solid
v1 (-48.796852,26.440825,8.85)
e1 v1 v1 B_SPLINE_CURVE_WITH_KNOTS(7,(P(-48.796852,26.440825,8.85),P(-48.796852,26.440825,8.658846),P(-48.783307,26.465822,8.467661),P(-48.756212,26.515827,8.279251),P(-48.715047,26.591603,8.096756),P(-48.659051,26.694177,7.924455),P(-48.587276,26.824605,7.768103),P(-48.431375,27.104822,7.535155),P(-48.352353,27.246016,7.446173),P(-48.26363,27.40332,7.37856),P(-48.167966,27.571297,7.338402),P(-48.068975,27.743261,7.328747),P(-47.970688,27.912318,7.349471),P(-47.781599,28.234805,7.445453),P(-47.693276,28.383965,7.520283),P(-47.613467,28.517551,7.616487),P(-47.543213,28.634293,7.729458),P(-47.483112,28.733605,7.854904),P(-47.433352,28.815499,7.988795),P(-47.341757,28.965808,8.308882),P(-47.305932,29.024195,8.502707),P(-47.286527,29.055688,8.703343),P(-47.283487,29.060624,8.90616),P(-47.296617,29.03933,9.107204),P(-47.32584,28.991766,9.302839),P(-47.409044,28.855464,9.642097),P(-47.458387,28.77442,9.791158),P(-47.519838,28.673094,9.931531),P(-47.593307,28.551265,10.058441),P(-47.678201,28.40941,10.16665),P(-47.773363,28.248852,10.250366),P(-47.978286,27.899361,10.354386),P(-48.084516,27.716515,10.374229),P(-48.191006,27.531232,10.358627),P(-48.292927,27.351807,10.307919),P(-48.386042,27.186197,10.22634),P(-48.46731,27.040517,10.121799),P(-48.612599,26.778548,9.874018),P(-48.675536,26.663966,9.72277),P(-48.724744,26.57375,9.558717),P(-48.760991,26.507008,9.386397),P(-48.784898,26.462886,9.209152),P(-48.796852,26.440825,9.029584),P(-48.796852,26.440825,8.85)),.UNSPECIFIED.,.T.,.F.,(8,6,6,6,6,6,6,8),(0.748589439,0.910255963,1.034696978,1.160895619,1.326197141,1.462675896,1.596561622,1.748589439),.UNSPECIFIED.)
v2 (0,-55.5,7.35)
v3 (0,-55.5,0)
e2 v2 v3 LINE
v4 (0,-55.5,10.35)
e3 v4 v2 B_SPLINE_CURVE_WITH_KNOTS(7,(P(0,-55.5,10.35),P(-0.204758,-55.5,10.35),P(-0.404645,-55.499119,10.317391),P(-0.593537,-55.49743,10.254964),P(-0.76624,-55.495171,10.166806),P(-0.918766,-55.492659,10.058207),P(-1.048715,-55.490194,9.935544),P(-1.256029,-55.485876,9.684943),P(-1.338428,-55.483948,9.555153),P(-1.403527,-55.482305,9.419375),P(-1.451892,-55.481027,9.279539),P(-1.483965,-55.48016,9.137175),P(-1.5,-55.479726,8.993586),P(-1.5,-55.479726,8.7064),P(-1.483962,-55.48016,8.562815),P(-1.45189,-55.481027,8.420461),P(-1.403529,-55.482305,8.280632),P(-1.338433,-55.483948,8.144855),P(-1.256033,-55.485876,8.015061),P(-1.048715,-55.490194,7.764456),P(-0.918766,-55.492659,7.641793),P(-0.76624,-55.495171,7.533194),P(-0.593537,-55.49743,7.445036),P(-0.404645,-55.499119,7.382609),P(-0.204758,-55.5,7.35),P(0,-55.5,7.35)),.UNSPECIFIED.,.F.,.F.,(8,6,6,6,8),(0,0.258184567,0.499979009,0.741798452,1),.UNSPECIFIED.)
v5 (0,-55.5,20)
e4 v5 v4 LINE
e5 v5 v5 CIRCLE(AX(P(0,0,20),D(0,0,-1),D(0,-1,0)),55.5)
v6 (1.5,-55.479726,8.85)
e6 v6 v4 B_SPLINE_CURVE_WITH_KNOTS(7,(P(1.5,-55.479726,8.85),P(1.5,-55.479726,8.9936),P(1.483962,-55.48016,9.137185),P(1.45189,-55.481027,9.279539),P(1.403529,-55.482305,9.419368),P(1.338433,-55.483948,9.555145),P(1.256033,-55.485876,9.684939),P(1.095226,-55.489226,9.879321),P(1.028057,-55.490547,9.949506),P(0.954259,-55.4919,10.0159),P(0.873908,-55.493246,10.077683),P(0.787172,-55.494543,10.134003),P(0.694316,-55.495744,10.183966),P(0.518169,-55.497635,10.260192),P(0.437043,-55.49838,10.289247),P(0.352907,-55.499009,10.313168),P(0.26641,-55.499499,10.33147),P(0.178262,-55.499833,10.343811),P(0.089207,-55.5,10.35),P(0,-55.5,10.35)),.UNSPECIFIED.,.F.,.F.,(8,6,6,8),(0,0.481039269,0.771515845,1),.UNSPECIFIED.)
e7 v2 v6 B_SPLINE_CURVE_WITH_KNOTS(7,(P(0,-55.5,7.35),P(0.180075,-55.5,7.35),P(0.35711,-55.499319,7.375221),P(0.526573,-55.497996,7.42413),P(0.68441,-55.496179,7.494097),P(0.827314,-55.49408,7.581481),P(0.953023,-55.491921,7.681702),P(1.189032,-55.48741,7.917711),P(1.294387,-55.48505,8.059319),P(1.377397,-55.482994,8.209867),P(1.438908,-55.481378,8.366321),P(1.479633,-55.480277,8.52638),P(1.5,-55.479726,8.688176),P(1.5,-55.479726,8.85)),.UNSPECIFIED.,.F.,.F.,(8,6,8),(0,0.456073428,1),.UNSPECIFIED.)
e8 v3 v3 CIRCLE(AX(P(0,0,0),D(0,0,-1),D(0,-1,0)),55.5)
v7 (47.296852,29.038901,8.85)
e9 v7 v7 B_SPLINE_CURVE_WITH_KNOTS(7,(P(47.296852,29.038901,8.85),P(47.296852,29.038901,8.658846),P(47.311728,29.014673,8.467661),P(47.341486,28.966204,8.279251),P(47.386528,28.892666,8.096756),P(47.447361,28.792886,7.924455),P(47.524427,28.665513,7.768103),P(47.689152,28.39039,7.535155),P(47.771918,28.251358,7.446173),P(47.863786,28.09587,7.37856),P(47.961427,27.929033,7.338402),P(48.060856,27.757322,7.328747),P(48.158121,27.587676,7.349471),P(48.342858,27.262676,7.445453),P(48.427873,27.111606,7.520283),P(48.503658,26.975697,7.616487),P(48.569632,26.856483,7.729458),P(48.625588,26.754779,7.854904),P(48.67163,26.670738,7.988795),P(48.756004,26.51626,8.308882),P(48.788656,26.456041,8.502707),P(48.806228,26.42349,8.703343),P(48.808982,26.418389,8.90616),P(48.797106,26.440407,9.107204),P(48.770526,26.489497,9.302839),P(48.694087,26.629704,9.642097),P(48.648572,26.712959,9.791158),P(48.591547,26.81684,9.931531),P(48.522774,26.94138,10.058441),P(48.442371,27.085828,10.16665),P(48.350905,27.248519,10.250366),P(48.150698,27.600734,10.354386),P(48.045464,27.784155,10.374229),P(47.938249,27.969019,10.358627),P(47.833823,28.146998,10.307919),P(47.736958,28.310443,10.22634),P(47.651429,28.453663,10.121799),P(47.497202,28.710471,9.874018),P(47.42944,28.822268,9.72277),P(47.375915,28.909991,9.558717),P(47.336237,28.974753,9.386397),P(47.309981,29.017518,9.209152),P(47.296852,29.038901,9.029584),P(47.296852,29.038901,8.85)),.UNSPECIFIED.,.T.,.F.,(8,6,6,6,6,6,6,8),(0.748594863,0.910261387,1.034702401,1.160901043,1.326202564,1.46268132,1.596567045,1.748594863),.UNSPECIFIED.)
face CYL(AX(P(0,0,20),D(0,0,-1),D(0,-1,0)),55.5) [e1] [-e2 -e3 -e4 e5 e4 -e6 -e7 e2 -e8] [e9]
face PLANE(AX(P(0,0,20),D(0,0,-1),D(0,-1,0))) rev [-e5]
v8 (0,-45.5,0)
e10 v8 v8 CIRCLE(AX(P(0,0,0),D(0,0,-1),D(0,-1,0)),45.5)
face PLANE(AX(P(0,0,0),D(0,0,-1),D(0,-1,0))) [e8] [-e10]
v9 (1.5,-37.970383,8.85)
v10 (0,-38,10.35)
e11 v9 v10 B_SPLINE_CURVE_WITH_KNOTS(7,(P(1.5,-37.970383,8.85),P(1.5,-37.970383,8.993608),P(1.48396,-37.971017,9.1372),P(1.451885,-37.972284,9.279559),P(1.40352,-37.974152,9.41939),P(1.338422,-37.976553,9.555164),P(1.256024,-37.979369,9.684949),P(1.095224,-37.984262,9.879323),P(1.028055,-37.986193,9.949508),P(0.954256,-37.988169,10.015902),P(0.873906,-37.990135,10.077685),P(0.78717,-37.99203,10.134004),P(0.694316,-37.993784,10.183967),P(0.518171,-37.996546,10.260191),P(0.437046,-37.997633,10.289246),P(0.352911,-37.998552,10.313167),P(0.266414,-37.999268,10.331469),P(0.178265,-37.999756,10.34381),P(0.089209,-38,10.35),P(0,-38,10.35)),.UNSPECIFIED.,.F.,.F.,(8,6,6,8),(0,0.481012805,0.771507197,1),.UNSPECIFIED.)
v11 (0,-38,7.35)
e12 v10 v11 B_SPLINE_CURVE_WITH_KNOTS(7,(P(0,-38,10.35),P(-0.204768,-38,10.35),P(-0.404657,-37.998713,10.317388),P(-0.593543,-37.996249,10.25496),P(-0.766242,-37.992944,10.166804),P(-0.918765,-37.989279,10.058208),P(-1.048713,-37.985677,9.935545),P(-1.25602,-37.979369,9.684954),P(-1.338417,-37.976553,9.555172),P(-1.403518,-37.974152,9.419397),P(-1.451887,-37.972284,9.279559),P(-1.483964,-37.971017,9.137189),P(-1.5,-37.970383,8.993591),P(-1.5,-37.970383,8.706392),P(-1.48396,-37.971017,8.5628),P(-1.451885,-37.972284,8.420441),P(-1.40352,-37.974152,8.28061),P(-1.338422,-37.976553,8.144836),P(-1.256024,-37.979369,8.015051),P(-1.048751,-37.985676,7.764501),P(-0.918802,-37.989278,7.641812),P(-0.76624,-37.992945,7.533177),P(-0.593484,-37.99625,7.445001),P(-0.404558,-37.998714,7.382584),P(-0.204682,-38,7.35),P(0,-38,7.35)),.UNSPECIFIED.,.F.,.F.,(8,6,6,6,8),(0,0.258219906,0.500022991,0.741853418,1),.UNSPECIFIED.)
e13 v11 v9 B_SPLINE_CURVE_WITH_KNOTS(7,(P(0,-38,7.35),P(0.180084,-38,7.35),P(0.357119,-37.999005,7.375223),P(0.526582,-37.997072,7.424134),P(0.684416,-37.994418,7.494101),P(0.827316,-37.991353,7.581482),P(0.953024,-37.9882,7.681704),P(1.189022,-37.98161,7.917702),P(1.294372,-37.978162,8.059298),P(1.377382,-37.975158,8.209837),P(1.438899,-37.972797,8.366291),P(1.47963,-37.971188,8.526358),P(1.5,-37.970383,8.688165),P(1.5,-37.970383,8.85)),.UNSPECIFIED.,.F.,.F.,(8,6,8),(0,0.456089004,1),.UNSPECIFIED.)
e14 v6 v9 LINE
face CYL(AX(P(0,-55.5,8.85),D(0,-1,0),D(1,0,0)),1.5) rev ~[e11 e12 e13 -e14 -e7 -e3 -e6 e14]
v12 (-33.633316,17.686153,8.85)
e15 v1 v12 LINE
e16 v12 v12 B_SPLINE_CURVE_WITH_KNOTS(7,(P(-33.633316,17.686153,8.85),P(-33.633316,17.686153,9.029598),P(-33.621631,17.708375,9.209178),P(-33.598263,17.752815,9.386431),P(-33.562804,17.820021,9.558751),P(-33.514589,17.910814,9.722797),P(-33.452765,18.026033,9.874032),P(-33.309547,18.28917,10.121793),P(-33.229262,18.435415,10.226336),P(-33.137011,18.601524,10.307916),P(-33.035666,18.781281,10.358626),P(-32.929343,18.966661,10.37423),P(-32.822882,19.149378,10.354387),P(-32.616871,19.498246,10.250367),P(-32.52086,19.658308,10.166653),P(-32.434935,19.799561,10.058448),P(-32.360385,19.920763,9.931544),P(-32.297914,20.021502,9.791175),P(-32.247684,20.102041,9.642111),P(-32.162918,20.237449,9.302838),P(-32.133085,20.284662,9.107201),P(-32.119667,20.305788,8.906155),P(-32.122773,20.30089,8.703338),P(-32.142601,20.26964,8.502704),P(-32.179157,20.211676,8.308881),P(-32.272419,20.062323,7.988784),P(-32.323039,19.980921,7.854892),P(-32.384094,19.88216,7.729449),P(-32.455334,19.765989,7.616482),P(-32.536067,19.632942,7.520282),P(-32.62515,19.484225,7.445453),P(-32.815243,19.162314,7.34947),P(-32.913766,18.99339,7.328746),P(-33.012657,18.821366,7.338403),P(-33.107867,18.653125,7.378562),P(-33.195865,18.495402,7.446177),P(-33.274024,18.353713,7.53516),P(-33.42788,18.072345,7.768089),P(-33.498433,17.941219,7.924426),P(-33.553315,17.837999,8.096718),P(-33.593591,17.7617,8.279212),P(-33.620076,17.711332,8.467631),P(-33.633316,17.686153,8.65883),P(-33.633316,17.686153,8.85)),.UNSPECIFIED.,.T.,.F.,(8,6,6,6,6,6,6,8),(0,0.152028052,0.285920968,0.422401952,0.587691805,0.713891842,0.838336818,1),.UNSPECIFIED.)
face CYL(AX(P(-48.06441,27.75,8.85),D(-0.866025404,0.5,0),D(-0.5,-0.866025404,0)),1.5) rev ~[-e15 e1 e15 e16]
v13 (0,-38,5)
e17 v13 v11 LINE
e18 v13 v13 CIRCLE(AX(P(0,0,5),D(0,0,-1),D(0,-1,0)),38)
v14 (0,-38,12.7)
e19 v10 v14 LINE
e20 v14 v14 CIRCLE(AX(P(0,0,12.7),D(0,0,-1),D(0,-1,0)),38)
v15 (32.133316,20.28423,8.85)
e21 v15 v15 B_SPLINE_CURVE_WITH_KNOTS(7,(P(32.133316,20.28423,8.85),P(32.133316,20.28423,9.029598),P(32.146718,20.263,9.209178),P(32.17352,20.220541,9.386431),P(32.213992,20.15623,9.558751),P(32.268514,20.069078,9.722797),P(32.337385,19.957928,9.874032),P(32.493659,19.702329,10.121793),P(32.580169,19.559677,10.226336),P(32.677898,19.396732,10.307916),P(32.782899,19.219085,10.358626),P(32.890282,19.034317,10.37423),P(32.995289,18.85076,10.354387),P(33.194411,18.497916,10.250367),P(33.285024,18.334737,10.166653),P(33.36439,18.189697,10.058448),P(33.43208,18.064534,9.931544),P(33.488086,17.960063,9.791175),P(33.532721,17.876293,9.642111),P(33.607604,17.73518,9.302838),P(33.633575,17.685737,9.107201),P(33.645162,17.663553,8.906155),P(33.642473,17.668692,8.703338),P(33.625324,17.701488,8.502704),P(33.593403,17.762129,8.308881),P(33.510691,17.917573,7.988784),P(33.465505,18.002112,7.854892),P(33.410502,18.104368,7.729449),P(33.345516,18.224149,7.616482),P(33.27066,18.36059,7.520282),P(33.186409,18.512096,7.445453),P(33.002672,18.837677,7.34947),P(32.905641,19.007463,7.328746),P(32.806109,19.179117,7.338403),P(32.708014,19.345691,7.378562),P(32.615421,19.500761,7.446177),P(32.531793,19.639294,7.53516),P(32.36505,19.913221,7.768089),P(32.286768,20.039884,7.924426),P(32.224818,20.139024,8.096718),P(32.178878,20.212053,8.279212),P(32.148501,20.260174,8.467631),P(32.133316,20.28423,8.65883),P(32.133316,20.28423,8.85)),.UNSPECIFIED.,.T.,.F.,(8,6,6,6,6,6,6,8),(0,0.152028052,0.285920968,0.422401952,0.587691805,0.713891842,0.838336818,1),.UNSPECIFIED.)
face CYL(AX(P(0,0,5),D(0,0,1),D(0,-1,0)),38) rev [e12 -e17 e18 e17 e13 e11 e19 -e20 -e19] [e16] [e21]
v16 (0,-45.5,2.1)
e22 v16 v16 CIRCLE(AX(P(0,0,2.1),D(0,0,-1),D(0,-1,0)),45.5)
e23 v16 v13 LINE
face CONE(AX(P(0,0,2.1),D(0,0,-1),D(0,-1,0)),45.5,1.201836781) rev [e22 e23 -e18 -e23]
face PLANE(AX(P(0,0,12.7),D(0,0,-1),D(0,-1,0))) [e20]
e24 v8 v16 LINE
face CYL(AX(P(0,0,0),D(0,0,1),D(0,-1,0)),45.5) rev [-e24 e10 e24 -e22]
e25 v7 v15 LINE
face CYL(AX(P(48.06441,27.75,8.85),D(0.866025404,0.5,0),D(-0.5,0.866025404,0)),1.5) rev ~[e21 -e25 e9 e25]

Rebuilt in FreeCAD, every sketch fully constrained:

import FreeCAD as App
import Part
import Sketcher
from FreeCAD import Vector
Q = App.Units.Quantity


def add_polygon(sketch, points):
    """Adds a closed chain of lines whose ends are joined by coincident constraints."""
    first, n = sketch.GeometryCount, len(points)
    for a, b in zip(points, points[1:] + points[:1]):
        sketch.addGeometry(Part.LineSegment(App.Vector(*a, 0), App.Vector(*b, 0)), False)
    for i in range(n):
        sketch.addConstraint(Sketcher.Constraint("Coincident", first + i, 2, first + (i + 1) % n, 1))

doc = App.newDocument("Part")
body = doc.addObject("PartDesign::Body", "Body")

sketch1 = body.newObject("Sketcher::SketchObject", "Sketch")
sketch1.AttachmentSupport = (doc.getObject("YZ_Plane"), [""])
sketch1.MapMode = "FlatFace"
add_polygon(sketch1, [(-55.5, 0), (-45.5, 0), (-45.5, 2.1), (-38, 5), (-38, 12.7), (0, 12.7), (0, 20), (-55.5, 20)])
sketch1.addConstraint([
    Sketcher.Constraint("Horizontal", 0),
    Sketcher.Constraint("Vertical", 1),
    Sketcher.Constraint("Vertical", 3),
    Sketcher.Constraint("Horizontal", 4),
    Sketcher.Constraint("Vertical", 5),
    Sketcher.Constraint("Horizontal", 6),
    Sketcher.Constraint("Vertical", 7),
    Sketcher.Constraint("PointOnObject", 0, 2, -1),
    Sketcher.Constraint("PointOnObject", 4, 2, -2),
    Sketcher.Constraint("DistanceX", 0, 1, 0, 2, Q("10 mm")),
    Sketcher.Constraint("DistanceX", 4, 1, 4, 2, Q("38 mm")),
    Sketcher.Constraint("DistanceY", 7, 2, 7, 1, Q("20 mm")),
    Sketcher.Constraint("DistanceX", 6, 2, 6, 1, Q("55.5 mm")),
    Sketcher.Constraint("DistanceY", 1, 1, 1, 2, Q("2.1 mm")),
    Sketcher.Constraint("DistanceY", 3, 1, 3, 2, Q("7.7 mm")),
    Sketcher.Constraint("DistanceY", 5, 1, 5, 2, Q("7.3 mm")),
])
revolution = body.newObject("PartDesign::Revolution", "Revolution")
revolution.Profile = sketch1
revolution.ReferenceAxis = (sketch1, ["V_Axis"])
revolution.Angle = 360

sketch2 = body.newObject("Sketcher::SketchObject", "Sketch001")
sketch2.Placement = App.Placement(Vector(48.06441, 27.75, 0), App.Rotation(Vector(-0.5, 0.866025404, 0), Vector(0, 0, 1), Vector(0.866025404, 0.5, 0), "ZXY"))
sketch2.addGeometry(Part.Circle(Vector(0, 8.85, 0), Vector(0, 0, 1), 1.5), False)
sketch2.addConstraint([
    Sketcher.Constraint("PointOnObject", 0, 3, -2),
    Sketcher.Constraint("Diameter", 0, Q("3 mm")),
    Sketcher.Constraint("DistanceY", -1, 1, 0, 3, Q("8.85 mm")),
])
pocket1 = body.newObject("PartDesign::Pocket", "Pocket")
pocket1.Profile = sketch2
pocket1.Length = 17.530617

sketch3 = body.newObject("Sketcher::SketchObject", "Sketch002")
sketch3.Placement = App.Placement(Vector(-48.06441, 27.75, 0), App.Rotation(Vector(-0.5, -0.866025404, 0), Vector(0, 0, 1), Vector(-0.866025404, 0.5, 0), "ZXY"))
sketch3.addGeometry(Part.Circle(Vector(0, 8.85, 0), Vector(0, 0, 1), 1.5), False)
sketch3.addConstraint([
    Sketcher.Constraint("PointOnObject", 0, 3, -2),
    Sketcher.Constraint("Diameter", 0, Q("3 mm")),
    Sketcher.Constraint("DistanceY", -1, 1, 0, 3, Q("8.85 mm")),
])
pocket2 = body.newObject("PartDesign::Pocket", "Pocket001")
pocket2.Profile = sketch3
pocket2.Length = 17.530617

sketch4 = body.newObject("Sketcher::SketchObject", "Sketch003")
sketch4.AttachmentSupport = (doc.getObject("XZ_Plane"), [""])
sketch4.MapMode = "FlatFace"
sketch4.AttachmentOffset = App.Placement(Vector(0, 0, 55.5), App.Rotation())
sketch4.addGeometry(Part.Circle(Vector(0, 8.85, 0), Vector(0, 0, 1), 1.5), False)
sketch4.addConstraint([
    Sketcher.Constraint("PointOnObject", 0, 3, -2),
    Sketcher.Constraint("Diameter", 0, Q("3 mm")),
    Sketcher.Constraint("DistanceY", -1, 1, 0, 3, Q("8.85 mm")),
])
pocket3 = body.newObject("PartDesign::Pocket", "Pocket002")
pocket3.Profile = sketch4
pocket3.Length = 17.530617

doc.recompute()
